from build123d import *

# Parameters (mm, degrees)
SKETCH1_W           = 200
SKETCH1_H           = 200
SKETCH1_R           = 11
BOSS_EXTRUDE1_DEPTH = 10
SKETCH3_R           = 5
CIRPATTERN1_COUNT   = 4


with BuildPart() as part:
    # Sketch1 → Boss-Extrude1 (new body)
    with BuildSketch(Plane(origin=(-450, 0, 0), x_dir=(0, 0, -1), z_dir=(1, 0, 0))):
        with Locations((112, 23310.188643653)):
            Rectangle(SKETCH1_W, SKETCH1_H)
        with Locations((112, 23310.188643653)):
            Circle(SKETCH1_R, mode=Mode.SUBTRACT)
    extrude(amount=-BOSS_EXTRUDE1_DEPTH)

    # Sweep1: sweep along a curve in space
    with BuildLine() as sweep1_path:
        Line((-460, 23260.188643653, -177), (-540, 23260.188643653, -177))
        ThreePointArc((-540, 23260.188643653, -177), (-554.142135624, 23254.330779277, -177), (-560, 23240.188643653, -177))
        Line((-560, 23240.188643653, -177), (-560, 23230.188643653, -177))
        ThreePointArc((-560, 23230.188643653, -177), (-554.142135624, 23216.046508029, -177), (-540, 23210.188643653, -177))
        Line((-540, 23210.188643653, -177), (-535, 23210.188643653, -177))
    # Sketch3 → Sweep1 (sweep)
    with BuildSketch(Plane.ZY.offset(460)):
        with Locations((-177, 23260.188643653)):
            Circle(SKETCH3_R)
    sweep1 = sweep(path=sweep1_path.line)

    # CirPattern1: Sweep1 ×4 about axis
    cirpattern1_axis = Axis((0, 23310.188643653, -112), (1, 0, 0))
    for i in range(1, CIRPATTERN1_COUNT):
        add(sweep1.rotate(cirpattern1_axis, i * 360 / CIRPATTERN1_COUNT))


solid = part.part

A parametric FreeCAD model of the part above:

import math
import FreeCAD as App
import Part
import Sketcher

V = App.Vector


def add_polygon(sketch, points):
    """Adds a closed chain of lines whose ends are joined by coincident constraints."""
    first, n = sketch.GeometryCount, len(points)
    for a, b in zip(points, points[1:] + points[:1]):
        sketch.addGeometry(Part.LineSegment(App.Vector(*a, 0), App.Vector(*b, 0)), False)
    for i in range(n):
        sketch.addConstraint(Sketcher.Constraint("Coincident", first + i, 2, first + (i + 1) % n, 1))

doc = App.newDocument("Part")
body = doc.addObject("PartDesign::Body", "Body")

sketch1 = doc.addObject("Sketcher::SketchObject", "Sketch")
body.addObject(sketch1)
sketch1.AttachmentSupport = (doc.YZ_Plane, [""])
sketch1.MapMode = "FlatFace"
sketch1.AttachmentOffset = App.Placement(V(0, 0, -450), App.Rotation())
add_polygon(sketch1, [(23410.188644, -12), (23210.188644, -12), (23210.188644, -212), (23410.188644, -212)])
sketch1.addGeometry(Part.Circle(V(23310.188644, -112, 0), V(0, 0, 1), 11), False)
sketch1.addConstraint([
    Sketcher.Constraint("Horizontal", 0),
    Sketcher.Constraint("Vertical", 1),
    Sketcher.Constraint("Horizontal", 2),
    Sketcher.Constraint("Vertical", 3),
    Sketcher.Constraint("Equal", 2, 1),
    Sketcher.Constraint("Diameter", 4, 22.0),
    Sketcher.Constraint("DistanceX", 0, 2, 0, 1, 200.0),
    Sketcher.Constraint("DistanceY", 4, 3, -1, 1, 112.0),
    Sketcher.Constraint("DistanceY", 0, 2, -1, 1, 12.0),
    Sketcher.Constraint("DistanceX", 0, 2, 4, 3, 100.0),
    Sketcher.Constraint("DistanceX", -1, 1, 4, 3, 23310.188644),
])
pad1 = doc.addObject("PartDesign::Pad", "Pad")
body.addObject(pad1)
pad1.Profile = sketch1
pad1.Length = 10
pad1.Reversed = True

sketch2 = doc.addObject("Sketcher::SketchObject", "Sketch001")
body.addObject(sketch2)
sketch2.AttachmentSupport = (doc.YZ_Plane, [""])
sketch2.MapMode = "FlatFace"
sketch2.AttachmentOffset = App.Placement(V(0, 0, -460), App.Rotation())
sketch2.addGeometry(Part.Circle(V(23260.188644, -177, 0), V(0, 0, 1), 5), False)
sketch2.addConstraint([
    Sketcher.Constraint("Diameter", 0, 10.0),
    Sketcher.Constraint("DistanceY", 0, 3, -1, 1, 177.0),
    Sketcher.Constraint("DistanceX", -1, 1, 0, 3, 23260.188644),
])

sketch3 = doc.addObject("Sketcher::SketchObject", "Sketch002")
body.addObject(sketch3)
sketch3.AttachmentSupport = (doc.XY_Plane, [""])
sketch3.MapMode = "FlatFace"
sketch3.AttachmentOffset = App.Placement(V(0, 0, -177), App.Rotation())
sketch3.addGeometry([
    Part.LineSegment(V(-460, 23260.188644, 0), V(-540, 23260.188644, 0)),
    Part.ArcOfCircle(Part.Circle(V(-540, 23240.188644, 0), V(0, 0, 1), 20), math.radians(90), math.radians(180)),
    Part.LineSegment(V(-560, 23240.188644, 0), V(-560, 23230.188644, 0)),
    Part.ArcOfCircle(Part.Circle(V(-540, 23230.188644, 0), V(0, 0, 1), 20), math.radians(180), math.radians(270)),
    Part.LineSegment(V(-540, 23210.188644, 0), V(-535, 23210.188644, 0)),
], False)
sketch3.addConstraint([
    Sketcher.Constraint("Tangent", 0, 2, 1, 1),
    Sketcher.Constraint("Tangent", 1, 2, 2, 1),
    Sketcher.Constraint("Tangent", 2, 2, 3, 1),
    Sketcher.Constraint("Tangent", 3, 2, 4, 1),
    Sketcher.Constraint("Horizontal", 0),
    Sketcher.Constraint("Vertical", 2),
    Sketcher.Constraint("Horizontal", 4),
    Sketcher.Constraint("Equal", 1, 3),
    Sketcher.Constraint("Radius", 1, 20.0),
    Sketcher.Constraint("DistanceX", 0, 2, 0, 1, 80.0),
    Sketcher.Constraint("DistanceX", 4, 1, 4, 2, 5.0),
    Sketcher.Constraint("DistanceY", 2, 2, 2, 1, 10.0),
    Sketcher.Constraint("DistanceX", 1, 3, -1, 1, 540.0),
    Sketcher.Constraint("DistanceY", -1, 1, 1, 3, 23240.188644),
])
doc.recompute()

additivepipe = doc.addObject("PartDesign::AdditivePipe", "AdditivePipe")
body.addObject(additivepipe)
additivepipe.Profile = sketch2
additivepipe.Spine = (sketch3, ["Edge1", "Edge2", "Edge3", "Edge4", "Edge5"])
doc.recompute()

datumline = doc.addObject("PartDesign::Line", "DatumLine")
body.addObject(datumline)
datumline.Placement = App.Placement(V(0, 23310.188644, -112), App.Rotation(V(0, 0, 1), V(1, 0, 0)))
polarpattern = doc.addObject("PartDesign::PolarPattern", "PolarPattern")
body.addObject(polarpattern)
polarpattern.Originals = [additivepipe]
polarpattern.Axis = (datumline, [""])
polarpattern.Angle = 360
polarpattern.Occurrences = 4
body.Tip = polarpattern

doc.recompute()
